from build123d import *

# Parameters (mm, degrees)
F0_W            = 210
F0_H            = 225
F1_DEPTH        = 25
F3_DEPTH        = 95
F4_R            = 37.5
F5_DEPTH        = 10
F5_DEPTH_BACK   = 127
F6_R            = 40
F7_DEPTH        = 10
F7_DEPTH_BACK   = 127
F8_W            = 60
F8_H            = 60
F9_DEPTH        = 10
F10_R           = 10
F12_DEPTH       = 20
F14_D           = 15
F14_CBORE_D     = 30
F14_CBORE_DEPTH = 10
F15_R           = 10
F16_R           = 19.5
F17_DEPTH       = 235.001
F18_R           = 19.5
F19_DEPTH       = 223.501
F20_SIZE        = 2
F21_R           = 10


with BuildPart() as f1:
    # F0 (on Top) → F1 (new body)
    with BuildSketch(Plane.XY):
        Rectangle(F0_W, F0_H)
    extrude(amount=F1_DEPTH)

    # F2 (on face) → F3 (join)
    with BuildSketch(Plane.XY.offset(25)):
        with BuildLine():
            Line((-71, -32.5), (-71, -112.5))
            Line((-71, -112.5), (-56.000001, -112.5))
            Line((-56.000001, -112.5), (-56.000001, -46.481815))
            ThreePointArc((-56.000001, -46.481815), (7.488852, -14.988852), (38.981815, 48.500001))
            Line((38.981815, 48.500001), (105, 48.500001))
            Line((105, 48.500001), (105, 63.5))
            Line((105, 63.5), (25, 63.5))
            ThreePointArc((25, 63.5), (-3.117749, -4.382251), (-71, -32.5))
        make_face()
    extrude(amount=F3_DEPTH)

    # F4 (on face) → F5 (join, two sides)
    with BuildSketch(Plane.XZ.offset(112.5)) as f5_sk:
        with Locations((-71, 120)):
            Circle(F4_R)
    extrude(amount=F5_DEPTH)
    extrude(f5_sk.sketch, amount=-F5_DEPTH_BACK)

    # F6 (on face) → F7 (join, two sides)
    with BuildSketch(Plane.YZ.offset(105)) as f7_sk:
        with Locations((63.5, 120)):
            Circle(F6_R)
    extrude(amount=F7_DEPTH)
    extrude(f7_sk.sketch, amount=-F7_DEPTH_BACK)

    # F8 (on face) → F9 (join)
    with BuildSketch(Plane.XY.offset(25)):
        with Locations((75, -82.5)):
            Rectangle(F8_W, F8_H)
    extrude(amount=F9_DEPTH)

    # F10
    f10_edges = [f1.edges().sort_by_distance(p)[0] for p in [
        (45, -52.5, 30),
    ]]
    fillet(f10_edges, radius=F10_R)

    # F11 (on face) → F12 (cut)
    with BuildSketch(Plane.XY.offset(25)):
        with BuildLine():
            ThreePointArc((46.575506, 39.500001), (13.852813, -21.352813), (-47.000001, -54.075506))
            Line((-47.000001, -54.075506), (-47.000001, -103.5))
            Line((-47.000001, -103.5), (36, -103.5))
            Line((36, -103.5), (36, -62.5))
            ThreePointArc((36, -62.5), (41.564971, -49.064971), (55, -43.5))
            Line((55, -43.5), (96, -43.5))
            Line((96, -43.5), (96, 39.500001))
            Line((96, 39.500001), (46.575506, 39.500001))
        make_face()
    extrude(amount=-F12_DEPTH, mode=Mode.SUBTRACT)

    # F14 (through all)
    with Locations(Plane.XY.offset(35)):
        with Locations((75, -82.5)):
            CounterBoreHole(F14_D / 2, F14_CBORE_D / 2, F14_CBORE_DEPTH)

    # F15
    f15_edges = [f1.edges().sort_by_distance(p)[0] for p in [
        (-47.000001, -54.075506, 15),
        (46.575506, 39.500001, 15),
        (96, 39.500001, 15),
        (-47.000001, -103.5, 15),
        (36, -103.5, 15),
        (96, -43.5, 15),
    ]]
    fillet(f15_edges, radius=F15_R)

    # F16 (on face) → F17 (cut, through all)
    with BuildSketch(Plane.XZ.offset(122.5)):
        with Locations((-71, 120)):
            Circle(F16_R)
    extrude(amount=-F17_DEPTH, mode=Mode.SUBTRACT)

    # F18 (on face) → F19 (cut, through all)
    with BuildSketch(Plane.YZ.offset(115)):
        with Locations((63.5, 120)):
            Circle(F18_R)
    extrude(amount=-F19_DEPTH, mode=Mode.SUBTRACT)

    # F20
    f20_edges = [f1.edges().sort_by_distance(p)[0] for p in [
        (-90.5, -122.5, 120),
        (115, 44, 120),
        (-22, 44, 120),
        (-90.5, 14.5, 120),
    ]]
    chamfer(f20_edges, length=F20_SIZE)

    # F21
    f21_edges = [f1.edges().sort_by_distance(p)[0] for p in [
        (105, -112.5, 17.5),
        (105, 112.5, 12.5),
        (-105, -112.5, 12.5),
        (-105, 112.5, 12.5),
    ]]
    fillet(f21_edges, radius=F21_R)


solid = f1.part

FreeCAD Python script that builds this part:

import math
import FreeCAD as App
import Part
import Sketcher
Q = App.Units.Quantity


def edges_at(feature, points):
    """Names of the edges that pass closest to the given points."""
    edges = feature.Shape.Edges
    near = lambda p: min(range(len(edges)), key=lambda i: edges[i].distToShape(Part.Vertex(*p))[0])
    return sorted({f"Edge{near(p) + 1}" for p in points})

doc = App.newDocument("Part")
body = doc.addObject("PartDesign::Body", "Body")

sketch1 = body.newObject("Sketcher::SketchObject", "Sketch")
sketch1.AttachmentSupport = (doc.getObject("XY_Plane"), [""])
sketch1.MapMode = "FlatFace"
sketch1.addGeometry([
    Part.LineSegment(App.Vector(-105, 112, 0), App.Vector(-105, -112, 0)),
    Part.LineSegment(App.Vector(-105, -112, 0), App.Vector(105, -112, 0)),
    Part.LineSegment(App.Vector(105, -112, 0), App.Vector(105, 112, 0)),
    Part.LineSegment(App.Vector(105, 112, 0), App.Vector(-105, 112, 0)),
], False)
sketch1.addConstraint([
    Sketcher.Constraint("Coincident", 0, 2, 1, 1),
    Sketcher.Constraint("Coincident", 1, 2, 2, 1),
    Sketcher.Constraint("Coincident", 2, 2, 3, 1),
    Sketcher.Constraint("Coincident", 3, 2, 0, 1),
    Sketcher.Constraint("Vertical", 0),
    Sketcher.Constraint("Horizontal", 1),
    Sketcher.Constraint("Vertical", 2),
    Sketcher.Constraint("Horizontal", 3),
    Sketcher.Constraint("Symmetric", 0, 2, 2, 2, -1, 1),
    Sketcher.Constraint("DistanceX", 1, 1, 1, 2, Q("210 mm")),
    Sketcher.Constraint("DistanceY", 0, 2, 0, 1, Q("225 mm")),
])
pad1 = body.newObject("PartDesign::Pad", "Pad")
pad1.Profile = sketch1
pad1.Length = 25

sketch2 = body.newObject("Sketcher::SketchObject", "Sketch001")
sketch2.AttachmentSupport = (doc.getObject("XY_Plane"), [""])
sketch2.MapMode = "FlatFace"
sketch2.AttachmentOffset = App.Placement(App.Vector(0, 0, 25), App.Rotation())
sketch2.addGeometry([
    Part.LineSegment(App.Vector(-71, -32, 0), App.Vector(-71, -112, 0)),
    Part.LineSegment(App.Vector(-71, -112, 0), App.Vector(-56, -112, 0)),
    Part.LineSegment(App.Vector(-56, -112, 0), App.Vector(-56, -46, 0)),
    Part.ArcOfCircle(Part.Circle(App.Vector(-71, 63, 0), App.Vector(0, 0, 1), 111), math.radians(-82), math.radians(-8)),
    Part.LineSegment(App.Vector(39, 49, 0), App.Vector(105, 49, 0)),
    Part.LineSegment(App.Vector(105, 49, 0), App.Vector(105, 64, 0)),
    Part.LineSegment(App.Vector(105, 64, 0), App.Vector(25, 64, 0)),
    Part.ArcOfCircle(Part.Circle(App.Vector(-71, 63, 0), App.Vector(0, 0, 1), 96), math.radians(-90), math.radians(0)),
], False)
sketch2.addConstraint([
    Sketcher.Constraint("Coincident", 0, 2, 1, 1),
    Sketcher.Constraint("Coincident", 1, 2, 2, 1),
    Sketcher.Constraint("Coincident", 2, 2, 3, 1),
    Sketcher.Constraint("Coincident", 3, 2, 4, 1),
    Sketcher.Constraint("Coincident", 4, 2, 5, 1),
    Sketcher.Constraint("Coincident", 5, 2, 6, 1),
    Sketcher.Constraint("Coincident", 6, 2, 7, 2),
    Sketcher.Constraint("Coincident", 7, 1, 0, 1),
    Sketcher.Constraint("Vertical", 0),
    Sketcher.Constraint("Horizontal", 1),
    Sketcher.Constraint("Vertical", 2),
    Sketcher.Constraint("Horizontal", 4),
    Sketcher.Constraint("Vertical", 5),
    Sketcher.Constraint("Horizontal", 6),
    Sketcher.Constraint("Coincident", 7, 3, 3, 3),
    Sketcher.Constraint("Horizontal", 7, 3, 5, 2),
    Sketcher.Constraint("Vertical", 7, 3, 0, 2),
    Sketcher.Constraint("Equal", 6, 0),
    Sketcher.Constraint("Equal", 4, 2),
    Sketcher.Constraint("Radius", 7, Q("96 mm")),
    Sketcher.Constraint("DistanceX", 1, 1, 1, 2, Q("14.999999 mm")),
    Sketcher.Constraint("DistanceX", 6, 2, 6, 1, Q("80 mm")),
    Sketcher.Constraint("DistanceX", 7, 3, -1, 1, Q("71 mm")),
    Sketcher.Constraint("DistanceY", -1, 1, 7, 3, Q("63.5 mm")),
    Sketcher.Constraint("Radius", 3, Q("110.999995 mm")),
])
pad2 = body.newObject("PartDesign::Pad", "Pad001")
pad2.Profile = sketch2
pad2.Length = 95

sketch3 = body.newObject("Sketcher::SketchObject", "Sketch002")
sketch3.AttachmentSupport = (doc.getObject("XZ_Plane"), [""])
sketch3.MapMode = "FlatFace"
sketch3.AttachmentOffset = App.Placement(App.Vector(0, 0, 112.5), App.Rotation())
sketch3.addGeometry(Part.Circle(App.Vector(-71, 120, 0), App.Vector(0, 0, 1), 38), False)
sketch3.addConstraint([
    Sketcher.Constraint("Diameter", 0, Q("75 mm")),
    Sketcher.Constraint("DistanceX", 0, 3, -1, 1, Q("71 mm")),
    Sketcher.Constraint("DistanceY", -1, 1, 0, 3, Q("120 mm")),
])
pad3 = body.newObject("PartDesign::Pad", "Pad002")
pad3.Profile = sketch3
pad3.Type = "TwoLengths"
pad3.Length = 10
pad3.Length2 = 127

sketch4 = body.newObject("Sketcher::SketchObject", "Sketch003")
sketch4.AttachmentSupport = (doc.getObject("YZ_Plane"), [""])
sketch4.MapMode = "FlatFace"
sketch4.AttachmentOffset = App.Placement(App.Vector(0, 0, 105), App.Rotation())
sketch4.addGeometry(Part.Circle(App.Vector(64, 120, 0), App.Vector(0, 0, 1), 40), False)
sketch4.addConstraint([
    Sketcher.Constraint("Diameter", 0, Q("80 mm")),
    Sketcher.Constraint("DistanceY", -1, 1, 0, 3, Q("120 mm")),
    Sketcher.Constraint("DistanceX", -1, 1, 0, 3, Q("63.5 mm")),
])
pad4 = body.newObject("PartDesign::Pad", "Pad003")
pad4.Profile = sketch4
pad4.Type = "TwoLengths"
pad4.Length = 10
pad4.Length2 = 127

sketch5 = body.newObject("Sketcher::SketchObject", "Sketch004")
sketch5.AttachmentSupport = (doc.getObject("XY_Plane"), [""])
sketch5.MapMode = "FlatFace"
sketch5.AttachmentOffset = App.Placement(App.Vector(0, 0, 25), App.Rotation())
sketch5.addGeometry([
    Part.LineSegment(App.Vector(45, -52, 0), App.Vector(45, -112, 0)),
    Part.LineSegment(App.Vector(45, -112, 0), App.Vector(105, -112, 0)),
    Part.LineSegment(App.Vector(105, -112, 0), App.Vector(105, -52, 0)),
    Part.LineSegment(App.Vector(105, -52, 0), App.Vector(45, -52, 0)),
], False)
sketch5.addConstraint([
    Sketcher.Constraint("Coincident", 0, 2, 1, 1),
    Sketcher.Constraint("Coincident", 1, 2, 2, 1),
    Sketcher.Constraint("Coincident", 2, 2, 3, 1),
    Sketcher.Constraint("Coincident", 3, 2, 0, 1),
    Sketcher.Constraint("Vertical", 0),
    Sketcher.Constraint("Horizontal", 1),
    Sketcher.Constraint("Vertical", 2),
    Sketcher.Constraint("Horizontal", 3),
    Sketcher.Constraint("Equal", 3, 0),
    Sketcher.Constraint("DistanceX", 1, 1, 1, 2, Q("60 mm")),
    Sketcher.Constraint("DistanceX", -1, 1, 0, 2, Q("45 mm")),
    Sketcher.Constraint("DistanceY", 0, 2, -1, 1, Q("112.5 mm")),
])
pad5 = body.newObject("PartDesign::Pad", "Pad004")
pad5.Profile = sketch5
pad5.Length = 10
doc.recompute()

fillet = body.newObject("PartDesign::Fillet", "Fillet")
fillet.Base = (pad5, edges_at(pad5, [(45, -52.5, 30)]))
fillet.Radius = 10

sketch6 = body.newObject("Sketcher::SketchObject", "Sketch005")
sketch6.AttachmentSupport = (doc.getObject("XY_Plane"), [""])
sketch6.MapMode = "FlatFace"
sketch6.AttachmentOffset = App.Placement(App.Vector(0, 0, 25), App.Rotation())
sketch6.addGeometry([
    Part.ArcOfCircle(Part.Circle(App.Vector(-71, 63, 0), App.Vector(0, 0, 1), 120), math.radians(-78), math.radians(-12)),
    Part.LineSegment(App.Vector(-47, -54, 0), App.Vector(-47, -104, 0)),
    Part.LineSegment(App.Vector(-47, -104, 0), App.Vector(36, -104, 0)),
    Part.LineSegment(App.Vector(36, -104, 0), App.Vector(36, -62, 0)),
    Part.ArcOfCircle(Part.Circle(App.Vector(55, -62, 0), App.Vector(0, 0, 1), 19), math.radians(90), math.radians(180)),
    Part.LineSegment(App.Vector(55, -44, 0), App.Vector(96, -44, 0)),
    Part.LineSegment(App.Vector(96, -44, 0), App.Vector(96, 40, 0)),
    Part.LineSegment(App.Vector(96, 40, 0), App.Vector(47, 40, 0)),
], False)
sketch6.addConstraint([
    Sketcher.Constraint("Coincident", 0, 1, 1, 1),
    Sketcher.Constraint("Coincident", 1, 2, 2, 1),
    Sketcher.Constraint("Coincident", 2, 2, 3, 1),
    Sketcher.Constraint("Tangent", 3, 2, 4, 2),
    Sketcher.Constraint("Tangent", 4, 1, 5, 1),
    Sketcher.Constraint("Coincident", 5, 2, 6, 1),
    Sketcher.Constraint("Coincident", 6, 2, 7, 1),
    Sketcher.Constraint("Coincident", 7, 2, 0, 2),
    Sketcher.Constraint("Vertical", 1),
    Sketcher.Constraint("Horizontal", 2),
    Sketcher.Constraint("Vertical", 3),
    Sketcher.Constraint("Horizontal", 5),
    Sketcher.Constraint("Vertical", 6),
    Sketcher.Constraint("Horizontal", 7),
    Sketcher.Constraint("Equal", 7, 1),
    Sketcher.Constraint("Equal", 5, 3),
    Sketcher.Constraint("Equal", 2, 6),
    Sketcher.Constraint("Radius", 4, Q("18.999999 mm")),
    Sketcher.Constraint("DistanceX", 2, 1, 2, 2, Q("83.000001 mm")),
    Sketcher.Constraint("DistanceX", 5, 1, 5, 2, Q("41 mm")),
    Sketcher.Constraint("DistanceX", -1, 1, 4, 3, Q("54.999999 mm")),
    Sketcher.Constraint("DistanceY", 4, 3, -1, 1, Q("62.499999 mm")),
    Sketcher.Constraint("Radius", 0, Q("119.999994 mm")),
    Sketcher.Constraint("DistanceX", 7, 2, 7, 1, Q("49.424494 mm")),
])
pocket1 = body.newObject("PartDesign::Pocket", "Pocket")
pocket1.Profile = sketch6
pocket1.Length = 20

sketch7 = body.newObject("Sketcher::SketchObject", "Sketch006")
sketch7.AttachmentSupport = (doc.getObject("XY_Plane"), [""])
sketch7.MapMode = "FlatFace"
sketch7.AttachmentOffset = App.Placement(App.Vector(0, 0, 35), App.Rotation())
sketch7.addGeometry(Part.Circle(App.Vector(75, -82, 0), App.Vector(0, 0, 1), 8), False)
sketch7.addConstraint([
    Sketcher.Constraint("Diameter", 0, Q("15 mm")),
    Sketcher.Constraint("DistanceX", -1, 1, 0, 3, Q("75 mm")),
    Sketcher.Constraint("DistanceY", 0, 3, -1, 1, Q("82.5 mm")),
])
doc.recompute()
hole = body.newObject("PartDesign::Hole", "Hole")
hole.Profile = sketch7
hole.ThreadType = "None"
hole.Diameter = 15
hole.DepthType = "ThroughAll"
hole.HoleCutType = "Counterbore"
hole.HoleCutDiameter = 30
hole.HoleCutDepth = 10
doc.recompute()

fillet2 = body.newObject("PartDesign::Fillet", "Fillet001")
fillet2.Base = (hole, edges_at(hole, [
    (-47, -54.076, 15),
    (46.576, 39.5, 15),
    (96, 39.5, 15),
    (-47, -103.5, 15),
    (36, -103.5, 15),
    (96, -43.5, 15),
]))
fillet2.Radius = 10

sketch8 = body.newObject("Sketcher::SketchObject", "Sketch007")
sketch8.AttachmentSupport = (doc.getObject("XZ_Plane"), [""])
sketch8.MapMode = "FlatFace"
sketch8.AttachmentOffset = App.Placement(App.Vector(0, 0, 122.5), App.Rotation())
sketch8.addGeometry(Part.Circle(App.Vector(-71, 120, 0), App.Vector(0, 0, 1), 20), False)
sketch8.addConstraint([
    Sketcher.Constraint("Diameter", 0, Q("39 mm")),
    Sketcher.Constraint("DistanceX", 0, 3, -1, 1, Q("71 mm")),
    Sketcher.Constraint("DistanceY", -1, 1, 0, 3, Q("120 mm")),
])
pocket2 = body.newObject("PartDesign::Pocket", "Pocket001")
pocket2.Profile = sketch8
pocket2.Type = "ThroughAll"

sketch9 = body.newObject("Sketcher::SketchObject", "Sketch008")
sketch9.AttachmentSupport = (doc.getObject("YZ_Plane"), [""])
sketch9.MapMode = "FlatFace"
sketch9.AttachmentOffset = App.Placement(App.Vector(0, 0, 115), App.Rotation())
sketch9.addGeometry(Part.Circle(App.Vector(64, 120, 0), App.Vector(0, 0, 1), 20), False)
sketch9.addConstraint([
    Sketcher.Constraint("Diameter", 0, Q("39 mm")),
    Sketcher.Constraint("DistanceY", -1, 1, 0, 3, Q("120 mm")),
    Sketcher.Constraint("DistanceX", -1, 1, 0, 3, Q("63.5 mm")),
])
pocket3 = body.newObject("PartDesign::Pocket", "Pocket002")
pocket3.Profile = sketch9
pocket3.Type = "ThroughAll"
doc.recompute()

chamfer = body.newObject("PartDesign::Chamfer", "Chamfer")
chamfer.Base = (pocket3, edges_at(pocket3, [
    (-90.5, -122.5, 120),
    (115, 44, 120),
    (-22, 44, 120),
    (-90.5, 14.5, 120),
]))
chamfer.Size = 2
doc.recompute()

fillet3 = body.newObject("PartDesign::Fillet", "Fillet002")
fillet3.Base = (chamfer, edges_at(chamfer, [
    (105, -112.5, 17.5),
    (105, 112.5, 12.5),
    (-105, -112.5, 12.5),
    (-105, 112.5, 12.5),
]))
fillet3.Radius = 10

doc.recompute()
